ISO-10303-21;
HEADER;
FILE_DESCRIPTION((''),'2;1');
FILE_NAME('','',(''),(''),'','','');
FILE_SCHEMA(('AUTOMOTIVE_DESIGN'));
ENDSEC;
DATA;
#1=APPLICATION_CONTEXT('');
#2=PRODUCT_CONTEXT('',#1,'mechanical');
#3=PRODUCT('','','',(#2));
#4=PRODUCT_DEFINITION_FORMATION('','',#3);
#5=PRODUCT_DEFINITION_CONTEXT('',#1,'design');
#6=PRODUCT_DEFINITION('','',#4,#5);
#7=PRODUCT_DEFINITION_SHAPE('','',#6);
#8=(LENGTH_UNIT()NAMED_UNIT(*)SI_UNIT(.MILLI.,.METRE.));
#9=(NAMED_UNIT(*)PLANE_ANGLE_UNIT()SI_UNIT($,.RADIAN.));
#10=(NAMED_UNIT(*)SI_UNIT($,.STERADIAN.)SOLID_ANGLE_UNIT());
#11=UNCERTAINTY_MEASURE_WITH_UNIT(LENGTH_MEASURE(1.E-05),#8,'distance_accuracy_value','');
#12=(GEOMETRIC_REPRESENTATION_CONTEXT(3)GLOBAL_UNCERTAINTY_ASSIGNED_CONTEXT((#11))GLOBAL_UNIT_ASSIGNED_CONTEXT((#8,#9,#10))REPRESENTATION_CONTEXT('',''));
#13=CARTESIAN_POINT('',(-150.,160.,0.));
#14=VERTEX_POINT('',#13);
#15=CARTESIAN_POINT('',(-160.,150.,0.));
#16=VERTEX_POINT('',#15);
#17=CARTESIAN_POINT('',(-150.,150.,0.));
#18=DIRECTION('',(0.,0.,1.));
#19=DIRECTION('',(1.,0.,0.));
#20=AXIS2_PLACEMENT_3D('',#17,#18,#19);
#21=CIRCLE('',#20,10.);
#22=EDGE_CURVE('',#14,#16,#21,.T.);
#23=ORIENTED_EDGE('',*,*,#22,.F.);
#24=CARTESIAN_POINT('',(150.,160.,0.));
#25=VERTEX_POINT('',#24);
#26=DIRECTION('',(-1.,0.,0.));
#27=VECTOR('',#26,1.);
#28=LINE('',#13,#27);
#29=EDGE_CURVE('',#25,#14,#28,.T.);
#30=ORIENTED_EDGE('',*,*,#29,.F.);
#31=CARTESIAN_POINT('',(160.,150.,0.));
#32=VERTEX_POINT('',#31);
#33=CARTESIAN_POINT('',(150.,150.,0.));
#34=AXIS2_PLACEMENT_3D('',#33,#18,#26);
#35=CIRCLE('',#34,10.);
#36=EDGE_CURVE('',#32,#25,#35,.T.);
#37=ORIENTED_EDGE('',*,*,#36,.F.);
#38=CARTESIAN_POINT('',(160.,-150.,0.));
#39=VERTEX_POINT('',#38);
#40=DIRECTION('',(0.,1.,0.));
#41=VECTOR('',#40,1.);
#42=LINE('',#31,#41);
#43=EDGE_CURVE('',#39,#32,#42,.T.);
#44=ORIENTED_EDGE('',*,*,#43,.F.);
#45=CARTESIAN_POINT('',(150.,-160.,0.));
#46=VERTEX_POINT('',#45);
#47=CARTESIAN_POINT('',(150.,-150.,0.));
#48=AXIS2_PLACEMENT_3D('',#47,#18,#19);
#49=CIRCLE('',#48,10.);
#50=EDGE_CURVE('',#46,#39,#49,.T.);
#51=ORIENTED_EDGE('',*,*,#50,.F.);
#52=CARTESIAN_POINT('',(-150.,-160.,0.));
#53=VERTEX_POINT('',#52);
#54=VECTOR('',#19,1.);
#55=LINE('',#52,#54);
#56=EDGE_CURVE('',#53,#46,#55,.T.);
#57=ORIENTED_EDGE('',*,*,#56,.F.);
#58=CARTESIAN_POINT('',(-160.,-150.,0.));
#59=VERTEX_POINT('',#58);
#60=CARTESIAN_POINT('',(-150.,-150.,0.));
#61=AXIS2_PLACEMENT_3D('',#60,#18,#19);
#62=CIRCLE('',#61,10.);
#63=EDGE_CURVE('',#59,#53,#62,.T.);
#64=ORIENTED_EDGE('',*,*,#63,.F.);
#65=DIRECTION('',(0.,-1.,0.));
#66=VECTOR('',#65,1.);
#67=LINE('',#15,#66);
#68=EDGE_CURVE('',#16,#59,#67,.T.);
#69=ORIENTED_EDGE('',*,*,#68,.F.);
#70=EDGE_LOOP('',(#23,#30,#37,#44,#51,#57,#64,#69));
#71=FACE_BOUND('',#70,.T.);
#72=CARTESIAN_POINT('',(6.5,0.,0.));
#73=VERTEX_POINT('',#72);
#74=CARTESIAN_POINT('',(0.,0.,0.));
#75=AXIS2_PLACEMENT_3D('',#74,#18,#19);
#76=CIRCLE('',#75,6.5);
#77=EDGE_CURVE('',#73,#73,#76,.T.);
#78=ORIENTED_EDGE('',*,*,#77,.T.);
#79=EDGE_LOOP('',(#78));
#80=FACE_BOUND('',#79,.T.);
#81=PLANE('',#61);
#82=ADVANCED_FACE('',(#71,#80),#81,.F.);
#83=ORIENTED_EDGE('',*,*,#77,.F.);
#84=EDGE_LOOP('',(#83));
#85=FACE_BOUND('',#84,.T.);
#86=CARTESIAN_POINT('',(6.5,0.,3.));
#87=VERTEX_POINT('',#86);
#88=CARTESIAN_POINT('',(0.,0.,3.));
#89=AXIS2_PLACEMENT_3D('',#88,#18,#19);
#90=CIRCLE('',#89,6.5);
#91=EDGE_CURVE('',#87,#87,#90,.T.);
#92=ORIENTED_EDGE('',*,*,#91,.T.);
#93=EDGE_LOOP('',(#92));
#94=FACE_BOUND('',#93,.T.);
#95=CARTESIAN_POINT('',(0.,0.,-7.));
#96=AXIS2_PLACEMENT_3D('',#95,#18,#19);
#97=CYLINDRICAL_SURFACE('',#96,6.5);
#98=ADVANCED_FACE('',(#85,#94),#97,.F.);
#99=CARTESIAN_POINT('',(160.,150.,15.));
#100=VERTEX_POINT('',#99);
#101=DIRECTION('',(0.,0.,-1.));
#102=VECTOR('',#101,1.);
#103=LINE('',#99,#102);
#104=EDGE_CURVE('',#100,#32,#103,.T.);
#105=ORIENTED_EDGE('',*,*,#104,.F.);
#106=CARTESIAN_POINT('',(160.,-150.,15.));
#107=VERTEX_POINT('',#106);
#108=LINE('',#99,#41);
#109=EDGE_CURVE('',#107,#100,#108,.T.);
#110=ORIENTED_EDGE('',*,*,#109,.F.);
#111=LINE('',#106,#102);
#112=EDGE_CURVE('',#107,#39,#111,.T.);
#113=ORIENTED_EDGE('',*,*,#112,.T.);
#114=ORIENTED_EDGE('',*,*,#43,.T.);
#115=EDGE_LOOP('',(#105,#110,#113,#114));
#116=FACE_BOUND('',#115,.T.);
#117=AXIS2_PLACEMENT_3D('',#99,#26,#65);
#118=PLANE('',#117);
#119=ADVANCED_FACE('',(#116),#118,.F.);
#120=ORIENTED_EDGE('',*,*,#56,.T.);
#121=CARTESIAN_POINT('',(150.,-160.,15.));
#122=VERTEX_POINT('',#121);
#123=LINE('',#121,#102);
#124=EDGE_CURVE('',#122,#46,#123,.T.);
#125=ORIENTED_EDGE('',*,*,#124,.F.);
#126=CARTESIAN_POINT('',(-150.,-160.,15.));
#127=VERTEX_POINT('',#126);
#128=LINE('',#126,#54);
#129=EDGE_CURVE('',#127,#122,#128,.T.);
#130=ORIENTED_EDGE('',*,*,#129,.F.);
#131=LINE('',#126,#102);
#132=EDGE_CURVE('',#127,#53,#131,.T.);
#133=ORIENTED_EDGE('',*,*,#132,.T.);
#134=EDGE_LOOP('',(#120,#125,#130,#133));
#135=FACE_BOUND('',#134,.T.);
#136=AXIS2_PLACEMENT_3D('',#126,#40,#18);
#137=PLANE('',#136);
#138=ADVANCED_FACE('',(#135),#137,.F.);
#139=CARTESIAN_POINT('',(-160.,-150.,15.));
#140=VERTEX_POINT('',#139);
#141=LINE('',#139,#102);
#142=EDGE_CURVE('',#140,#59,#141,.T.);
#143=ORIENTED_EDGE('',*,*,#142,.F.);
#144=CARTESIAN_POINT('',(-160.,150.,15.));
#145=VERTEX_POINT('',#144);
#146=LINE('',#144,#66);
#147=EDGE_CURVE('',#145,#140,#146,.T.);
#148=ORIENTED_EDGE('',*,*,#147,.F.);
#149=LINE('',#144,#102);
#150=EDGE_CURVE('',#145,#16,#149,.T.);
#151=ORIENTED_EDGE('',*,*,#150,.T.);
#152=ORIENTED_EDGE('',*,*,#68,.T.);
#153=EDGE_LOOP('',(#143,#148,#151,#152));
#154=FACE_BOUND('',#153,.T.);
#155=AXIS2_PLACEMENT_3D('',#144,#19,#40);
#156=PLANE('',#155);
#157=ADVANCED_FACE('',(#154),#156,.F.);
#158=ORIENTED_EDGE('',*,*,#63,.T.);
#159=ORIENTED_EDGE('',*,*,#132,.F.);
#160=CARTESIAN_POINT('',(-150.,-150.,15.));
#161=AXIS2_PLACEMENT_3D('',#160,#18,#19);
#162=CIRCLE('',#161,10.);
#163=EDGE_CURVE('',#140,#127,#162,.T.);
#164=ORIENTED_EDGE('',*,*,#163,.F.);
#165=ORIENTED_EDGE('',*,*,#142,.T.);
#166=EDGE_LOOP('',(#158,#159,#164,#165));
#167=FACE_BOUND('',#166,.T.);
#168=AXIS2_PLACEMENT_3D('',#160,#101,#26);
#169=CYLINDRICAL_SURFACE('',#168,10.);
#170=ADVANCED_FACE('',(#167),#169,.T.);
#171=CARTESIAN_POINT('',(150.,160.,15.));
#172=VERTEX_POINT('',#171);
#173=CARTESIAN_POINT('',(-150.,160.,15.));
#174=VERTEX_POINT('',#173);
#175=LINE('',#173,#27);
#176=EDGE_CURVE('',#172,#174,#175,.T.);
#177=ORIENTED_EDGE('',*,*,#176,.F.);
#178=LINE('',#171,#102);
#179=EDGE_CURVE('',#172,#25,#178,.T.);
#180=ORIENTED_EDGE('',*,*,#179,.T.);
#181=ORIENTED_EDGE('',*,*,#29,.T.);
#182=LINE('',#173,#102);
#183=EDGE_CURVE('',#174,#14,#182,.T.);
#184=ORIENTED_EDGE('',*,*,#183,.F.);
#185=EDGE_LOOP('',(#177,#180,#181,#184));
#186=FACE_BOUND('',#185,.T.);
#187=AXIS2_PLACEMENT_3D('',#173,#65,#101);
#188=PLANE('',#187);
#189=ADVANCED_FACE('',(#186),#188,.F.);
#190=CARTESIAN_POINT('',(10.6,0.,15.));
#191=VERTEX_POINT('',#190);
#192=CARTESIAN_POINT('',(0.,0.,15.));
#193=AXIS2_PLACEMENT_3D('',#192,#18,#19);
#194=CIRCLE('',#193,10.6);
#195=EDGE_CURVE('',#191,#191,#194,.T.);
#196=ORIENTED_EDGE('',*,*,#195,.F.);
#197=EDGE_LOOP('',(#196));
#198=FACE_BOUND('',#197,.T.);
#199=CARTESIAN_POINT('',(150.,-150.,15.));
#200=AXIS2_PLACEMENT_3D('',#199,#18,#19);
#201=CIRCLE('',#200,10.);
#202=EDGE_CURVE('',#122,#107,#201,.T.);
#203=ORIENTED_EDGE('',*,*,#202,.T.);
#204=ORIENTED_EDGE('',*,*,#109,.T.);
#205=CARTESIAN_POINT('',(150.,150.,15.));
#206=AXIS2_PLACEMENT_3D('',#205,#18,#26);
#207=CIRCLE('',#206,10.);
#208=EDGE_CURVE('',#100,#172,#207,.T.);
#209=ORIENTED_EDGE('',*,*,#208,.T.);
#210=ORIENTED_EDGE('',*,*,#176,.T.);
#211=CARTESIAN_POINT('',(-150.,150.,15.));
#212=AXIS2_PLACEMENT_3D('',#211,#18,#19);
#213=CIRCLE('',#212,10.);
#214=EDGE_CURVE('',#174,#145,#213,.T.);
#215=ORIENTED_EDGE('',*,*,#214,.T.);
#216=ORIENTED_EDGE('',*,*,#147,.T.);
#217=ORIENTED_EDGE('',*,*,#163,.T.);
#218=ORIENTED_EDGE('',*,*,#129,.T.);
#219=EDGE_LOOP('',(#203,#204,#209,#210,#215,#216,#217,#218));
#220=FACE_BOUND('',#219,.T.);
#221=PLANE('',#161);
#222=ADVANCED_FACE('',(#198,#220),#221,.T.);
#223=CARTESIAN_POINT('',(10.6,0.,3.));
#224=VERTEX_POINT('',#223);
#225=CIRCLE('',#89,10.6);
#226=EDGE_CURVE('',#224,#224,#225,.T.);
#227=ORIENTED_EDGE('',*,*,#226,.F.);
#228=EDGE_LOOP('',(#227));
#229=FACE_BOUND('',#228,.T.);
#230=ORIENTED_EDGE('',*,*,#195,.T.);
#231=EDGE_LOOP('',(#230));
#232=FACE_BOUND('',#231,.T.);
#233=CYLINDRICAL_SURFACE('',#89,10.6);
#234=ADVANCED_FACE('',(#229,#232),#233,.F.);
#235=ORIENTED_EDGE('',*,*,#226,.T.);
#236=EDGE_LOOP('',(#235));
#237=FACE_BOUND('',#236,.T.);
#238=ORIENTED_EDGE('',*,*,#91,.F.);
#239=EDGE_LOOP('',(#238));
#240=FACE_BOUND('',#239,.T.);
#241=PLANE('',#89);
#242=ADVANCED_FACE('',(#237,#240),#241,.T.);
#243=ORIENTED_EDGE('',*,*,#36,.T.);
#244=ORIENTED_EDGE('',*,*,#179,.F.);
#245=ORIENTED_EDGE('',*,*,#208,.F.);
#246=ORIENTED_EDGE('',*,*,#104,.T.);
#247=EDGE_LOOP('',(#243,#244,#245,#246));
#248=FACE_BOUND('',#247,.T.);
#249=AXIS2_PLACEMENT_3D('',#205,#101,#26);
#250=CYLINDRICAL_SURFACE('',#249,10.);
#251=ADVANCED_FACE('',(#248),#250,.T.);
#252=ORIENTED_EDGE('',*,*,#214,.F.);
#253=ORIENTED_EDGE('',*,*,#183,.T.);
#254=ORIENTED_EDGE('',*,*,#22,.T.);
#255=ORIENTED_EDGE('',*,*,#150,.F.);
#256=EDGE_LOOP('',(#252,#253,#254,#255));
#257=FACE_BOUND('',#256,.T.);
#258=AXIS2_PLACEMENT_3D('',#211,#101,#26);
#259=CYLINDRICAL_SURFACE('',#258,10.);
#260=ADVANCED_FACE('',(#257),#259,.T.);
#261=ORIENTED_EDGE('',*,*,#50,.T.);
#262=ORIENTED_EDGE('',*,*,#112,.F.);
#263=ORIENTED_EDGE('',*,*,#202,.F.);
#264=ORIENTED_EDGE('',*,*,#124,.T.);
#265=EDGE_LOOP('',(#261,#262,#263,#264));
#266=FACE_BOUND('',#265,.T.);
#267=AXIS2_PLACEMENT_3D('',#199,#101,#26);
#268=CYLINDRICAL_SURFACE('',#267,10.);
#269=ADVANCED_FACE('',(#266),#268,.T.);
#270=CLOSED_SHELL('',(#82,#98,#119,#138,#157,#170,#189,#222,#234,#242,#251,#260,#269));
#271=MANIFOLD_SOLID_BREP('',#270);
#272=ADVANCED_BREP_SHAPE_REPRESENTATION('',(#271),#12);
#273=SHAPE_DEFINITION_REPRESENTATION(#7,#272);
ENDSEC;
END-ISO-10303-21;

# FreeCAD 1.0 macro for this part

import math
import FreeCAD as App
import Part
import Sketcher

V = App.Vector
Q = App.Units.Quantity

doc = App.newDocument("Part")
params = doc.addObject("Spreadsheet::Sheet", "Params")
for row, (alias, value) in enumerate([
    ("sketch1_radius", "10 mm"),
    ("sketch1_width", "300 mm"),
    ("pad1_length", "15 mm"),
    ("sketch2_diameter", "21.2 mm"),
    ("pocket1_length", "12 mm"),
    ("sketch3_diameter", "13 mm"),
    ("pocket2_length", "10 mm"),
], start=1):
    params.set(f"A{row}", alias)
    params.set(f"B{row}", "=" + value)
    params.setAlias(f"B{row}", alias)

body = doc.addObject("PartDesign::Body", "Body")

sketch1 = body.newObject("Sketcher::SketchObject", "Sketch")
sketch1.AttachmentSupport = (doc.getObject("XY_Plane"), [""])
sketch1.MapMode = "FlatFace"
sketch1.addGeometry([
    Part.LineSegment(V(150, 160, 0), V(-150, 160, 0)),
    Part.ArcOfCircle(Part.Circle(V(-150, 150, 0), V(0, 0, 1), 10), math.radians(90), math.radians(180)),
    Part.LineSegment(V(-160, 150, 0), V(-160, -150, 0)),
    Part.ArcOfCircle(Part.Circle(V(-150, -150, 0), V(0, 0, 1), 10), math.radians(180), math.radians(270)),
    Part.LineSegment(V(-150, -160, 0), V(150, -160, 0)),
    Part.ArcOfCircle(Part.Circle(V(150, -150, 0), V(0, 0, 1), 10), math.radians(-90), math.radians(0)),
    Part.LineSegment(V(160, -150, 0), V(160, 150, 0)),
    Part.ArcOfCircle(Part.Circle(V(150, 150, 0), V(0, 0, 1), 10), math.radians(0), math.radians(90)),
], False)
sketch1.addConstraint([
    Sketcher.Constraint("Tangent", 0, 2, 1, 1),
    Sketcher.Constraint("Tangent", 1, 2, 2, 1),
    Sketcher.Constraint("Tangent", 2, 2, 3, 1),
    Sketcher.Constraint("Tangent", 3, 2, 4, 1),
    Sketcher.Constraint("Tangent", 4, 2, 5, 1),
    Sketcher.Constraint("Tangent", 5, 2, 6, 1),
    Sketcher.Constraint("Tangent", 6, 2, 7, 1),
    Sketcher.Constraint("Tangent", 7, 2, 0, 1),
    Sketcher.Constraint("Horizontal", 0),
    Sketcher.Constraint("Vertical", 2),
    Sketcher.Constraint("Horizontal", 4),
    Sketcher.Constraint("Vertical", 6),
    Sketcher.Constraint("Equal", 1, 3),
    Sketcher.Constraint("Equal", 3, 5),
    Sketcher.Constraint("Equal", 5, 7),
    Sketcher.Constraint("Symmetric", 1, 3, 5, 3, -1, 1),
    Sketcher.Constraint("Equal", 4, 2),
    Sketcher.Constraint("Radius", 1, Q("10 mm")),
    Sketcher.Constraint("DistanceX", 0, 2, 0, 1, Q("300 mm")),
])
sketch1.setExpression("Constraints[17]", "Params.sketch1_radius")
sketch1.setExpression("Constraints[18]", "Params.sketch1_width")
pad1 = body.newObject("PartDesign::Pad", "Pad")
pad1.Profile = sketch1
pad1.setExpression("Length", "Params.pad1_length")

sketch2 = body.newObject("Sketcher::SketchObject", "Sketch001")
sketch2.AttachmentSupport = (doc.getObject("XY_Plane"), [""])
sketch2.MapMode = "FlatFace"
sketch2.AttachmentOffset = App.Placement(V(0, 0, 15), App.Rotation())
sketch2.addGeometry(Part.Circle(V(0, 0, 0), V(0, 0, 1), 11), False)
sketch2.addConstraint([
    Sketcher.Constraint("Coincident", 0, 3, -1, 1),
    Sketcher.Constraint("Diameter", 0, Q("21.2 mm")),
])
sketch2.setExpression("Constraints[1]", "Params.sketch2_diameter")
pocket1 = body.newObject("PartDesign::Pocket", "Pocket")
pocket1.Profile = sketch2
pocket1.setExpression("Length", "Params.pocket1_length")

sketch3 = body.newObject("Sketcher::SketchObject", "Sketch002")
sketch3.AttachmentSupport = (doc.getObject("XY_Plane"), [""])
sketch3.MapMode = "FlatFace"
sketch3.AttachmentOffset = App.Placement(V(0, 0, 3), App.Rotation())
sketch3.addGeometry(Part.Circle(V(0, 0, 0), V(0, 0, 1), 6), False)
sketch3.addConstraint([
    Sketcher.Constraint("Coincident", 0, 3, -1, 1),
    Sketcher.Constraint("Diameter", 0, Q("13 mm")),
])
sketch3.setExpression("Constraints[1]", "Params.sketch3_diameter")
pocket2 = body.newObject("PartDesign::Pocket", "Pocket001")
pocket2.Profile = sketch3
pocket2.setExpression("Length", "Params.pocket2_length")

doc.recompute()
